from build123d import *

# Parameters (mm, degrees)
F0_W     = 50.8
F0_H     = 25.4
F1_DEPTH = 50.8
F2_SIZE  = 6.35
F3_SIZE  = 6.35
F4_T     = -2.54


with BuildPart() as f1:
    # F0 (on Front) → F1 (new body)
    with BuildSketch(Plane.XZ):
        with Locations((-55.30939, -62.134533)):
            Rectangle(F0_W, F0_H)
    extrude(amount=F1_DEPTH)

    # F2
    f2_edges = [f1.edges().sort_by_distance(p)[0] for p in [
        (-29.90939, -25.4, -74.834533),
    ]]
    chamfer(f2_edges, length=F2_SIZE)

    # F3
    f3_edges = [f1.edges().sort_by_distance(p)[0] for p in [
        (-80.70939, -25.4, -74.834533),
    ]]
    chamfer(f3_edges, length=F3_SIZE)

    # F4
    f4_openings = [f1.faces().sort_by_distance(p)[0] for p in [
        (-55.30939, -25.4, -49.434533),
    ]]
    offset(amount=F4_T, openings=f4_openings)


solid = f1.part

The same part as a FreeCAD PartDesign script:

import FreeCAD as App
import Part
import Sketcher

V = App.Vector
Q = App.Units.Quantity


def edges_at(feature, points):
    """Names of the edges that pass closest to the given points."""
    edges = feature.Shape.Edges
    near = lambda p: min(range(len(edges)), key=lambda i: edges[i].distToShape(Part.Vertex(*p))[0])
    return sorted({f"Edge{near(p) + 1}" for p in points})


def faces_at(feature, points):
    """Names of the faces that lie closest to the given points."""
    faces = feature.Shape.Faces
    near = lambda p: min(range(len(faces)), key=lambda i: faces[i].distToShape(Part.Vertex(*p))[0])
    return sorted({f"Face{near(p) + 1}" for p in points})

doc = App.newDocument("Part")
params = doc.addObject("Spreadsheet::Sheet", "Params")
for row, (alias, value) in enumerate([
    ("sketch1_width", "2 in"),
    ("sketch1_height", "1 in"),
    ("pad1_length", "2 in"),
    ("chamfer_size", "0.25 in"),
    ("chamfer2_size", "0.25 in"),
    ("thickness_wall", "0.1 in"),
], start=1):
    params.set(f"A{row}", alias)
    params.set(f"B{row}", "=" + value)
    params.setAlias(f"B{row}", alias)

body = doc.addObject("PartDesign::Body", "Body")

sketch1 = doc.addObject("Sketcher::SketchObject", "Sketch")
body.addObject(sketch1)
sketch1.AttachmentSupport = (doc.XZ_Plane, [""])
sketch1.MapMode = "FlatFace"
sketch1.addGeometry(Part.LineSegment(V(-81, -49, 0), V(-81, -75, 0)), False)
sketch1.addGeometry(Part.LineSegment(V(-81, -75, 0), V(-30, -75, 0)), False)
sketch1.addGeometry(Part.LineSegment(V(-30, -75, 0), V(-30, -49, 0)), False)
sketch1.addGeometry(Part.LineSegment(V(-30, -49, 0), V(-81, -49, 0)), False)
sketch1.addConstraint(Sketcher.Constraint("Coincident", 0, 2, 1, 1))
sketch1.addConstraint(Sketcher.Constraint("Coincident", 1, 2, 2, 1))
sketch1.addConstraint(Sketcher.Constraint("Coincident", 2, 2, 3, 1))
sketch1.addConstraint(Sketcher.Constraint("Coincident", 3, 2, 0, 1))
sketch1.addConstraint(Sketcher.Constraint("Vertical", 0))
sketch1.addConstraint(Sketcher.Constraint("Horizontal", 1))
sketch1.addConstraint(Sketcher.Constraint("Vertical", 2))
sketch1.addConstraint(Sketcher.Constraint("Horizontal", 3))
sketch1.addConstraint(Sketcher.Constraint("DistanceX", 1, 1, 1, 2, Q("2 in")))
sketch1.addConstraint(Sketcher.Constraint("DistanceY", 0, 2, 0, 1, Q("1 in")))
sketch1.addConstraint(Sketcher.Constraint("DistanceX", 0, 2, -1, 1, Q("80.70939 mm")))
sketch1.addConstraint(Sketcher.Constraint("DistanceY", 0, 2, -1, 1, Q("74.834533 mm")))
sketch1.setExpression("Constraints[8]", "Params.sketch1_width")
sketch1.setExpression("Constraints[9]", "Params.sketch1_height")
pad1 = doc.addObject("PartDesign::Pad", "Pad")
body.addObject(pad1)
pad1.Profile = sketch1
pad1.setExpression("Length", "Params.pad1_length")
doc.recompute()

chamfer = doc.addObject("PartDesign::Chamfer", "Chamfer")
body.addObject(chamfer)
chamfer.Base = (pad1, edges_at(pad1, [(-29.909, -25.4, -74.835)]))
chamfer.setExpression("Size", "Params.chamfer_size")
doc.recompute()

chamfer2 = doc.addObject("PartDesign::Chamfer", "Chamfer001")
body.addObject(chamfer2)
chamfer2.Base = (chamfer, edges_at(chamfer, [(-80.709, -25.4, -74.835)]))
chamfer2.setExpression("Size", "Params.chamfer2_size")
doc.recompute()

thickness = doc.addObject("PartDesign::Thickness", "Thickness")
body.addObject(thickness)
thickness.Base = (chamfer2, faces_at(chamfer2, [(-55.309, -25.4, -49.435)]))
thickness.setExpression("Value", "Params.thickness_wall")
thickness.Reversed = True
thickness.Join = "Arc"

doc.recompute()
